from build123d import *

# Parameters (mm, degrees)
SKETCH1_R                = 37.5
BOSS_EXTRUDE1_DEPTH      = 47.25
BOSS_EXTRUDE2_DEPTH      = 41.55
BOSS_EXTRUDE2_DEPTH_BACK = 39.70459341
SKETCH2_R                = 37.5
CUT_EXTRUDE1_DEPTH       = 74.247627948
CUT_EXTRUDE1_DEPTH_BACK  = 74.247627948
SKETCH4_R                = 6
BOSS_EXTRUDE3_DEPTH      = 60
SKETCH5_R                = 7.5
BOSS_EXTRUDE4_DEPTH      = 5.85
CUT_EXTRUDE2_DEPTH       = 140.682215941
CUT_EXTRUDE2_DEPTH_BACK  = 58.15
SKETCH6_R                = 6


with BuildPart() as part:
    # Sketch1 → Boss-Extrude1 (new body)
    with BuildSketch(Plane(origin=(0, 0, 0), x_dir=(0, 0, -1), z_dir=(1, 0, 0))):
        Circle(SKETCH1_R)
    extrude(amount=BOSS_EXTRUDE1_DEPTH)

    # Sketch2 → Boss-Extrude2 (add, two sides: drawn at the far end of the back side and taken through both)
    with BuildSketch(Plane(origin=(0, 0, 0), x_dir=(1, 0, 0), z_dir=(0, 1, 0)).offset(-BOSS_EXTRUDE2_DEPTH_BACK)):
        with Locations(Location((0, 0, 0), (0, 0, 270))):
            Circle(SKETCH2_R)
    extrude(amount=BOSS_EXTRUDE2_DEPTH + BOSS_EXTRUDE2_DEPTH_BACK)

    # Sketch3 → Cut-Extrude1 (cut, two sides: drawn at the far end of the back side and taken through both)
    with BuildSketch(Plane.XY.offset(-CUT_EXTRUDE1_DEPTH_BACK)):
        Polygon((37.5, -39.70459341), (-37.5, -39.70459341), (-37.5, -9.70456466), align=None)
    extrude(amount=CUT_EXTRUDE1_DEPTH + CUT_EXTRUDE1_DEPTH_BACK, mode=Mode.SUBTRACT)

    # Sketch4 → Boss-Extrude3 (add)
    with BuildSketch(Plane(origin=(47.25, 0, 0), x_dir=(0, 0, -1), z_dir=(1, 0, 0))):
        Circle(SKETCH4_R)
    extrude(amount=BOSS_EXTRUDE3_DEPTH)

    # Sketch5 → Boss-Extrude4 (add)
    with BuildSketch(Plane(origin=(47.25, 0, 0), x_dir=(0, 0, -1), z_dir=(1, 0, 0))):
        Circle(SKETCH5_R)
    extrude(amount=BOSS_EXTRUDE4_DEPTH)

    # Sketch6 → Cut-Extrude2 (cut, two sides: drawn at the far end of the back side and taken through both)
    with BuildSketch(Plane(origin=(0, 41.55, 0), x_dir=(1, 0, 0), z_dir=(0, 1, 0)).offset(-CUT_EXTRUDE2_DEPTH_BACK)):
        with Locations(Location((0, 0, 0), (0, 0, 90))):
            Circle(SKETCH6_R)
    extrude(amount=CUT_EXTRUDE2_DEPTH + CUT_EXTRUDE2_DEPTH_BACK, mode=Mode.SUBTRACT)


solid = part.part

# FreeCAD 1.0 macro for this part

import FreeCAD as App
import Part
import Sketcher

V = App.Vector
Q = App.Units.Quantity


def add_polygon(sketch, points):
    """Adds a closed chain of lines whose ends are joined by coincident constraints."""
    first, n = sketch.GeometryCount, len(points)
    for a, b in zip(points, points[1:] + points[:1]):
        sketch.addGeometry(Part.LineSegment(App.Vector(*a, 0), App.Vector(*b, 0)), False)
    for i in range(n):
        sketch.addConstraint(Sketcher.Constraint("Coincident", first + i, 2, first + (i + 1) % n, 1))

doc = App.newDocument("Part")
body = doc.addObject("PartDesign::Body", "Body")

# Sketch on YZ plane
sketch1 = body.newObject("Sketcher::SketchObject", "Sketch")
sketch1.AttachmentSupport = (doc.getObject("YZ_Plane"), [""])
sketch1.MapMode = "FlatFace"
sketch1.addGeometry(Part.Circle(V(0, 0, 0), V(0, 0, 1), 38), False)
sketch1.addConstraint([
    Sketcher.Constraint("Coincident", 0, 3, -1, 1),
    Sketcher.Constraint("Diameter", 0, Q("75 mm")),
])
pad1 = body.newObject("PartDesign::Pad", "Pad")
pad1.Profile = sketch1
pad1.Length = 47.25

# Sketch on XZ plane
sketch2 = body.newObject("Sketcher::SketchObject", "Sketch001")
sketch2.AttachmentSupport = (doc.getObject("XZ_Plane"), [""])
sketch2.MapMode = "FlatFace"
sketch2.addGeometry(Part.Circle(V(0, 0, 0), V(0, 0, 1), 38), False)
sketch2.addConstraint([
    Sketcher.Constraint("Coincident", 0, 3, -1, 1),
    Sketcher.Constraint("Diameter", 0, Q("75 mm")),
])
pad2 = body.newObject("PartDesign::Pad", "Pad001")
pad2.Profile = sketch2
pad2.Type = "TwoLengths"
pad2.Length = 41.55
pad2.Length2 = 39.704593
pad2.Reversed = True

# Sketch on XY plane
sketch3 = body.newObject("Sketcher::SketchObject", "Sketch002")
sketch3.AttachmentSupport = (doc.getObject("XY_Plane"), [""])
sketch3.MapMode = "FlatFace"
add_polygon(sketch3, [(-38, -40), (38, -40), (-38, -10)])  # lines 0-2
sketch3.addConstraint([
    Sketcher.Constraint("Horizontal", 0),
    Sketcher.Constraint("Vertical", 2),
    Sketcher.Constraint("DistanceX", 0, 1, 0, 2, Q("75 mm")),
    Sketcher.Constraint("DistanceX", -1, 1, 0, 2, Q("37.5 mm")),
    Sketcher.Constraint("DistanceY", 2, 2, 2, 1, Q("30.000029 mm")),
    Sketcher.Constraint("DistanceY", 0, 2, -1, 1, Q("39.704593 mm")),
])
pocket1 = body.newObject("PartDesign::Pocket", "Pocket")
pocket1.Profile = sketch3
pocket1.Type = "ThroughAll"
pocket1.Midplane = True

# Sketch on YZ plane
sketch4 = body.newObject("Sketcher::SketchObject", "Sketch003")
sketch4.AttachmentSupport = (doc.getObject("YZ_Plane"), [""])
sketch4.MapMode = "FlatFace"
sketch4.AttachmentOffset = App.Placement(V(0, 0, 47.25), App.Rotation())
sketch4.addGeometry(Part.Circle(V(0, 0, 0), V(0, 0, 1), 6), False)
sketch4.addConstraint([
    Sketcher.Constraint("Coincident", 0, 3, -1, 1),
    Sketcher.Constraint("Diameter", 0, Q("12 mm")),
])
pad3 = body.newObject("PartDesign::Pad", "Pad002")
pad3.Profile = sketch4
pad3.Length = 60

# Sketch on YZ plane
sketch5 = body.newObject("Sketcher::SketchObject", "Sketch004")
sketch5.AttachmentSupport = (doc.getObject("YZ_Plane"), [""])
sketch5.MapMode = "FlatFace"
sketch5.AttachmentOffset = App.Placement(V(0, 0, 47.25), App.Rotation())
sketch5.addGeometry(Part.Circle(V(0, 0, 0), V(0, 0, 1), 8), False)
sketch5.addConstraint([
    Sketcher.Constraint("Coincident", 0, 3, -1, 1),
    Sketcher.Constraint("Diameter", 0, Q("15 mm")),
])
pad4 = body.newObject("PartDesign::Pad", "Pad003")
pad4.Profile = sketch5
pad4.Length = 5.85

# Sketch on XZ plane
sketch6 = body.newObject("Sketcher::SketchObject", "Sketch005")
sketch6.AttachmentSupport = (doc.getObject("XZ_Plane"), [""])
sketch6.MapMode = "FlatFace"
sketch6.AttachmentOffset = App.Placement(V(0, 0, -41.55), App.Rotation())
sketch6.addGeometry(Part.Circle(V(0, 0, 0), V(0, 0, 1), 6), False)
sketch6.addConstraint([
    Sketcher.Constraint("Coincident", 0, 3, -1, 1),
    Sketcher.Constraint("Diameter", 0, Q("12 mm")),
])
pocket2 = body.newObject("PartDesign::Pocket", "Pocket001")
pocket2.Profile = sketch6
pocket2.Type = "TwoLengths"
pocket2.Length = 140.682216
pocket2.Length2 = 58.15

doc.recompute()
